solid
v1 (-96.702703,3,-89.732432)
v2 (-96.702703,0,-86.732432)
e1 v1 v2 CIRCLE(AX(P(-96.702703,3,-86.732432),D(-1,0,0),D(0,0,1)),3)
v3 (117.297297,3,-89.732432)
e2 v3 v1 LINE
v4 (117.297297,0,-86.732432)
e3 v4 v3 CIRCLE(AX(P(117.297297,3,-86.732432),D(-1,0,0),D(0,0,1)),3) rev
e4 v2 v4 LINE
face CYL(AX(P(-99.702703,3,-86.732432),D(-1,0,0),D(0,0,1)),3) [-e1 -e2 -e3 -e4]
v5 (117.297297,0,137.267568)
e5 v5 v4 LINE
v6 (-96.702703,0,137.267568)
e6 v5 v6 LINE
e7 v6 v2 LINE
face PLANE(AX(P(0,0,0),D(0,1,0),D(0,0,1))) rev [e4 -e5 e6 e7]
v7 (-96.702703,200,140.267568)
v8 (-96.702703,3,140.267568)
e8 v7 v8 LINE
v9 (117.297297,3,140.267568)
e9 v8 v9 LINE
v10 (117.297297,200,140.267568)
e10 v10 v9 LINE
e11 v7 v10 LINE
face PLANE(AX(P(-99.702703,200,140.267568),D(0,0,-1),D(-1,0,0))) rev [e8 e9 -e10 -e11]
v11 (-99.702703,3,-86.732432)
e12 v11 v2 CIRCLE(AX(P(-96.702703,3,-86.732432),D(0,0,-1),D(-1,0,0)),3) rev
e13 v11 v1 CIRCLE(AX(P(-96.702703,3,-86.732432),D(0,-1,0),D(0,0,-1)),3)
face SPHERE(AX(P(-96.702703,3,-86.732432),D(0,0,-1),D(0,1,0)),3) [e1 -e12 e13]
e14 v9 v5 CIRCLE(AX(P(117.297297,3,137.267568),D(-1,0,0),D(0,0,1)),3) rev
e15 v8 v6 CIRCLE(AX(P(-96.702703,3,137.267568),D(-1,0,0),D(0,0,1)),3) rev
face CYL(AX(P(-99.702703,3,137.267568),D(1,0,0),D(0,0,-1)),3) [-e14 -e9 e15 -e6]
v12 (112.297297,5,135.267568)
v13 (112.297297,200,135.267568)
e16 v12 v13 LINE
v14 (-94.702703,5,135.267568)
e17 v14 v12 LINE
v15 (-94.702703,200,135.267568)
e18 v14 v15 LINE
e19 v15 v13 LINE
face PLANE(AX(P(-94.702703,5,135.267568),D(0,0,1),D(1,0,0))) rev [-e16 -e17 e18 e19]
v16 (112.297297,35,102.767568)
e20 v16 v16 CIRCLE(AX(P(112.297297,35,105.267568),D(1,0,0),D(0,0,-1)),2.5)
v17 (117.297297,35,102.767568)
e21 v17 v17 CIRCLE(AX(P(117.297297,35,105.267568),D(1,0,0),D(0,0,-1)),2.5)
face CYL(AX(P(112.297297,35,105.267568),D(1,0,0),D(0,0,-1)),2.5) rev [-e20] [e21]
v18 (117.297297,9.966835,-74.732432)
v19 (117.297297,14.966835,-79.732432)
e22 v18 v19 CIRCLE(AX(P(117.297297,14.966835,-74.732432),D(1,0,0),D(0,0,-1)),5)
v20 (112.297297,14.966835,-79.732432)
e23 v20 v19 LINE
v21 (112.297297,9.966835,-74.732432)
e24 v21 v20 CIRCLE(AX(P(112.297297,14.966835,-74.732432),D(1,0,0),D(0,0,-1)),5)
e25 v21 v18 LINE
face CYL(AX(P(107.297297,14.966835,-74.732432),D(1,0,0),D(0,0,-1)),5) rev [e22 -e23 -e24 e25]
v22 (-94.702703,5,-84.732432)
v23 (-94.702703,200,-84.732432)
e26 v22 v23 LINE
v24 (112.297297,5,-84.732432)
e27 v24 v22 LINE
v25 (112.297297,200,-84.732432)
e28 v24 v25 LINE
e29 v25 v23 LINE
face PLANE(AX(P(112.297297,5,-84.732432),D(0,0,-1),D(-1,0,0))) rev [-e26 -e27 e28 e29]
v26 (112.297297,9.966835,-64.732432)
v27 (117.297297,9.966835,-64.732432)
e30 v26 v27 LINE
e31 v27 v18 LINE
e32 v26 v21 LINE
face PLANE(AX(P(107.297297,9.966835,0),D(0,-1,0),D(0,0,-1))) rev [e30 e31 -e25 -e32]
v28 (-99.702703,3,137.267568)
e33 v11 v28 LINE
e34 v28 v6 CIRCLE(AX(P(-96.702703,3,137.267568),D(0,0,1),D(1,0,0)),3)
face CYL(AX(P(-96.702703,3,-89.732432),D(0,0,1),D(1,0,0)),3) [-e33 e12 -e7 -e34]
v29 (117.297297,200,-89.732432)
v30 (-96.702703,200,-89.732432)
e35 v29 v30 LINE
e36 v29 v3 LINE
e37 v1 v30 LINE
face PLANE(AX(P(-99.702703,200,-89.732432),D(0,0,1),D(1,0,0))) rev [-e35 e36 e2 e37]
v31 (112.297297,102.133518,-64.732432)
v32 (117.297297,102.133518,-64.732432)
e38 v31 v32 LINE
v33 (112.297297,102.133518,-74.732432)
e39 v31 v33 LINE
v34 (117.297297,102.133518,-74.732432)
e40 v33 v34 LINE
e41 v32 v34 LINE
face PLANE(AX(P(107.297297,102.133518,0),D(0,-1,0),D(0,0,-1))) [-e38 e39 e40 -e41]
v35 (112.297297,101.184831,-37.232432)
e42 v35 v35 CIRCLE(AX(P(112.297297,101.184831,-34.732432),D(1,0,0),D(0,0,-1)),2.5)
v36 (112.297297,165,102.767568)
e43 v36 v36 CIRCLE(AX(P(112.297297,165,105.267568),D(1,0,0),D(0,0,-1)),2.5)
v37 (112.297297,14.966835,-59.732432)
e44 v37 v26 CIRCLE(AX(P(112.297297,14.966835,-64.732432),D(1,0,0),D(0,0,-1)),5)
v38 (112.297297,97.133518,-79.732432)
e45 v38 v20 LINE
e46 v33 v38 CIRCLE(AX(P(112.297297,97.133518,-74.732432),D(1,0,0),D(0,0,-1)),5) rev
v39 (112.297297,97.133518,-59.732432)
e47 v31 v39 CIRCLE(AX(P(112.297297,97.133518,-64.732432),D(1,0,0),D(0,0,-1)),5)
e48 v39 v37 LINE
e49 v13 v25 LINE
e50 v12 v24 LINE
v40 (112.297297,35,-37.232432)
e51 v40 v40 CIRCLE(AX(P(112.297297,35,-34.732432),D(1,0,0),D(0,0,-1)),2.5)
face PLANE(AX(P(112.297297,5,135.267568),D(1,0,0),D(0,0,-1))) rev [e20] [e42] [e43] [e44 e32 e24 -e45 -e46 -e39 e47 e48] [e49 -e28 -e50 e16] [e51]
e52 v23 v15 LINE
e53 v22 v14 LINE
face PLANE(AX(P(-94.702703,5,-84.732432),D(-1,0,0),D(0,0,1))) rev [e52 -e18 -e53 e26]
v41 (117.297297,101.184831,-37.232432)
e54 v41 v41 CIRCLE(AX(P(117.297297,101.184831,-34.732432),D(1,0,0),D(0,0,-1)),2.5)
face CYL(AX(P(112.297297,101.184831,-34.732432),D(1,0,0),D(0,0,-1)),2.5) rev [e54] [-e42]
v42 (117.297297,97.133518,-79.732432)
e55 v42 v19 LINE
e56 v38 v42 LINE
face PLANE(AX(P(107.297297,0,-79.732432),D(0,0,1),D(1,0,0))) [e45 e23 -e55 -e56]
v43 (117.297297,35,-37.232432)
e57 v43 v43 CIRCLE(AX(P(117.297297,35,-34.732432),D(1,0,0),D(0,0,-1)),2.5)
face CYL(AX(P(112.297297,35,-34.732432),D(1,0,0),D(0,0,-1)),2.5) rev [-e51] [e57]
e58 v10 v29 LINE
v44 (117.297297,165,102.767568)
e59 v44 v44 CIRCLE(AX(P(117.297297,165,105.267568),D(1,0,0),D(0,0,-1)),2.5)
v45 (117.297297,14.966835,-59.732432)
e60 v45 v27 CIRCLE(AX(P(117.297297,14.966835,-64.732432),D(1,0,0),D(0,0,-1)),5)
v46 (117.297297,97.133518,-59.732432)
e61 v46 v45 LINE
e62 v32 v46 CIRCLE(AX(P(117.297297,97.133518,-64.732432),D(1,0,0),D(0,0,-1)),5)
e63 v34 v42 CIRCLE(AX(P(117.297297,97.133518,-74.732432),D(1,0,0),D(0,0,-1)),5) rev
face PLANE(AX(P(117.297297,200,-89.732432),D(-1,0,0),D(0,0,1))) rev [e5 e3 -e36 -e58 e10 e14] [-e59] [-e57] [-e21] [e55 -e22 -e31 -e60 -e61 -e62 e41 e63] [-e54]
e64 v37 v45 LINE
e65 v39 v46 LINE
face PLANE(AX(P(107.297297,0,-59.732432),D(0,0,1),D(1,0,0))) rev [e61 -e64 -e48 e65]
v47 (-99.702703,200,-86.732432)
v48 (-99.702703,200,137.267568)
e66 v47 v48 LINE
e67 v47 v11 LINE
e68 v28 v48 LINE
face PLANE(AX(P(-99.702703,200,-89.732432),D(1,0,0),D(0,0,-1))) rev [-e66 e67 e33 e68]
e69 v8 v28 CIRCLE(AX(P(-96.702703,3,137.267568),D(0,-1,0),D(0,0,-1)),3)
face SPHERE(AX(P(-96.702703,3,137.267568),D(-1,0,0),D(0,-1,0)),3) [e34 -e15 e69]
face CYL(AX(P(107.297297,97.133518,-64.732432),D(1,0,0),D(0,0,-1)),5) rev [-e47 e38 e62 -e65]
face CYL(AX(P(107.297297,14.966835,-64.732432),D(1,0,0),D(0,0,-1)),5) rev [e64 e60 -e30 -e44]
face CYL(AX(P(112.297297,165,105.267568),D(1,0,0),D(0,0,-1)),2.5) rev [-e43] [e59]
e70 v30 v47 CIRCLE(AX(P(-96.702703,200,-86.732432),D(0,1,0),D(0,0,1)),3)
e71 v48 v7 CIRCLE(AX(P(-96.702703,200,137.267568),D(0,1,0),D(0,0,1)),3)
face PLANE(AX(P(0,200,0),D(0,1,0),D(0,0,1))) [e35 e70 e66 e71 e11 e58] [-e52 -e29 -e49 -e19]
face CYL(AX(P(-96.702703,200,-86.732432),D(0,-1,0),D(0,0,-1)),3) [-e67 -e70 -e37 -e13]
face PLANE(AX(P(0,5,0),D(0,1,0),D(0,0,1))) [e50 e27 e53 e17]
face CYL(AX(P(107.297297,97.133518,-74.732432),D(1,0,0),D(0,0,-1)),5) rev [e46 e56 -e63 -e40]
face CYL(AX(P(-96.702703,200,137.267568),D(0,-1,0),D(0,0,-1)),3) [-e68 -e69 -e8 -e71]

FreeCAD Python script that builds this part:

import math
import FreeCAD as App
import Part
import Sketcher

V = App.Vector


def edges_at(feature, points):
    """Names of the edges that pass closest to the given points."""
    edges = feature.Shape.Edges
    near = lambda p: min(range(len(edges)), key=lambda i: edges[i].distToShape(Part.Vertex(*p))[0])
    return sorted({f"Edge{near(p) + 1}" for p in points})


def add_polygon(sketch, points):
    """Adds a closed chain of lines whose ends are joined by coincident constraints."""
    first, n = sketch.GeometryCount, len(points)
    for a, b in zip(points, points[1:] + points[:1]):
        sketch.addGeometry(Part.LineSegment(App.Vector(*a, 0), App.Vector(*b, 0)), False)
    for i in range(n):
        sketch.addConstraint(Sketcher.Constraint("Coincident", first + i, 2, first + (i + 1) % n, 1))

doc = App.newDocument("Part")
body = doc.addObject("PartDesign::Body", "Body")

sketch1 = doc.addObject("Sketcher::SketchObject", "Sketch")
body.addObject(sketch1)
sketch1.AttachmentSupport = (doc.XZ_Plane, [""])
sketch1.MapMode = "FlatFace"
add_polygon(sketch1, [(-100, -90), (-100, 140), (117, 140), (117, -90)])
sketch1.addConstraint(Sketcher.Constraint("Vertical", 0))
sketch1.addConstraint(Sketcher.Constraint("Horizontal", 1))
sketch1.addConstraint(Sketcher.Constraint("Vertical", 2))
sketch1.addConstraint(Sketcher.Constraint("Horizontal", 3))
sketch1.addConstraint(Sketcher.Constraint("DistanceX", 1, 1, 1, 2, 217.0))
sketch1.addConstraint(Sketcher.Constraint("DistanceY", 0, 1, 0, 2, 230.0))
sketch1.addConstraint(Sketcher.Constraint("DistanceX", 0, 2, -1, 1, 99.702703))
sketch1.addConstraint(Sketcher.Constraint("DistanceY", -1, 1, 0, 2, 140.267568))
pad1 = doc.addObject("PartDesign::Pad", "Pad")
body.addObject(pad1)
pad1.Profile = sketch1
pad1.Length = 200
pad1.Reversed = True

sketch2 = doc.addObject("Sketcher::SketchObject", "Sketch001")
body.addObject(sketch2)
sketch2.AttachmentSupport = (doc.XZ_Plane, [""])
sketch2.MapMode = "FlatFace"
sketch2.AttachmentOffset = App.Placement(V(0, 0, -200), App.Rotation())
add_polygon(sketch2, [(-95, -85), (-95, 135), (112, 135), (112, -85)])
sketch2.addConstraint(Sketcher.Constraint("Vertical", 0))
sketch2.addConstraint(Sketcher.Constraint("Horizontal", 1))
sketch2.addConstraint(Sketcher.Constraint("Vertical", 2))
sketch2.addConstraint(Sketcher.Constraint("Horizontal", 3))
sketch2.addConstraint(Sketcher.Constraint("DistanceX", 1, 1, 1, 2, 207.0))
sketch2.addConstraint(Sketcher.Constraint("DistanceY", 0, 1, 0, 2, 220.0))
sketch2.addConstraint(Sketcher.Constraint("DistanceX", 0, 2, -1, 1, 94.702703))
sketch2.addConstraint(Sketcher.Constraint("DistanceY", -1, 1, 0, 2, 135.267568))
pocket1 = doc.addObject("PartDesign::Pocket", "Pocket")
body.addObject(pocket1)
pocket1.Profile = sketch2
pocket1.Length = 195
pocket1.Reversed = True
doc.recompute()

fillet = doc.addObject("PartDesign::Fillet", "Fillet")
body.addObject(fillet)
fillet.Base = (pocket1, edges_at(pocket1, [
    (8.797, 0, -89.732),
    (8.797, 0, 140.268),
    (-99.703, 0, 25.268),
    (-99.703, 100, -89.732),
    (-99.703, 100, 140.268),
]))
fillet.Radius = 3

sketch3 = doc.addObject("Sketcher::SketchObject", "Sketch002")
body.addObject(sketch3)
sketch3.AttachmentSupport = (doc.YZ_Plane, [""])
sketch3.MapMode = "FlatFace"
sketch3.AttachmentOffset = App.Placement(V(0, 0, 117.297297), App.Rotation())
sketch3.addGeometry(Part.ArcOfCircle(Part.Circle(V(165, 105.3, 0), V(0, 0, 1), 2.5), math.radians(180), math.radians(270)), False)
sketch3.addGeometry(Part.ArcOfCircle(Part.Circle(V(165, 105.3, 0), V(0, 0, 1), 2.5), math.radians(-90), math.radians(180)), False)
sketch3.addGeometry(Part.ArcOfCircle(Part.Circle(V(35, 105.3, 0), V(0, 0, 1), 2.5), math.radians(0), math.radians(270)), False)
sketch3.addGeometry(Part.ArcOfCircle(Part.Circle(V(35, 105.3, 0), V(0, 0, 1), 2.5), math.radians(-90), math.radians(0)), False)
sketch3.addGeometry(Part.ArcOfCircle(Part.Circle(V(35, -34.7, 0), V(0, 0, 1), 2.5), math.radians(-90), math.radians(0)), False)
sketch3.addGeometry(Part.ArcOfCircle(Part.Circle(V(35, -34.7, 0), V(0, 0, 1), 2.5), math.radians(0), math.radians(90)), False)
sketch3.addGeometry(Part.ArcOfCircle(Part.Circle(V(35, -34.7, 0), V(0, 0, 1), 2.5), math.radians(90), math.radians(270)), False)
sketch3.addGeometry(Part.ArcOfCircle(Part.Circle(V(101.2, -34.7, 0), V(0, 0, 1), 2.5), math.radians(180), math.radians(270)), False)
sketch3.addGeometry(Part.ArcOfCircle(Part.Circle(V(101.2, -34.7, 0), V(0, 0, 1), 2.5), math.radians(-90), math.radians(60)), False)
sketch3.addGeometry(Part.ArcOfCircle(Part.Circle(V(101.2, -34.7, 0), V(0, 0, 1), 2.5), math.radians(60), math.radians(180)), False)
sketch3.addConstraint(Sketcher.Constraint("Tangent", 0, 1, 1, 2))
sketch3.addConstraint(Sketcher.Constraint("Coincident", 1, 1, 0, 2))
sketch3.addConstraint(Sketcher.Constraint("Tangent", 2, 1, 3, 2))
sketch3.addConstraint(Sketcher.Constraint("Coincident", 3, 1, 2, 2))
sketch3.addConstraint(Sketcher.Constraint("Tangent", 4, 2, 5, 1))
sketch3.addConstraint(Sketcher.Constraint("Tangent", 5, 2, 6, 1))
sketch3.addConstraint(Sketcher.Constraint("Tangent", 6, 2, 4, 1))
sketch3.addConstraint(Sketcher.Constraint("Tangent", 7, 2, 8, 1))
sketch3.addConstraint(Sketcher.Constraint("Tangent", 8, 2, 9, 1))
sketch3.addConstraint(Sketcher.Constraint("Tangent", 9, 2, 7, 1))
sketch3.addConstraint(Sketcher.Constraint("Equal", 1, 2))
sketch3.addConstraint(Sketcher.Constraint("Equal", 3, 4))
sketch3.addConstraint(Sketcher.Constraint("Equal", 6, 7))
sketch3.addConstraint(Sketcher.Constraint("Horizontal", 1, 3, 2, 3))
sketch3.addConstraint(Sketcher.Constraint("Horizontal", 6, 3, 7, 3))
sketch3.addConstraint(Sketcher.Constraint("Horizontal", 3, 3, 0, 1))
sketch3.addConstraint(Sketcher.Constraint("Horizontal", 0, 1, 2, 1))
sketch3.addConstraint(Sketcher.Constraint("Horizontal", 9, 3, 4, 2))
sketch3.addConstraint(Sketcher.Constraint("Horizontal", 4, 2, 9, 2))
sketch3.addConstraint(Sketcher.Constraint("Vertical", 3, 3, 4, 3))
sketch3.addConstraint(Sketcher.Constraint("Vertical", 0, 3, 1, 1))
sketch3.addConstraint(Sketcher.Constraint("Vertical", 6, 3, 3, 1))
sketch3.addConstraint(Sketcher.Constraint("Vertical", 3, 1, 5, 2))
sketch3.addConstraint(Sketcher.Constraint("Vertical", 5, 2, 6, 2))
sketch3.addConstraint(Sketcher.Constraint("Vertical", 9, 3, 7, 2))
sketch3.addConstraint(Sketcher.Constraint("Radius", 0, 2.5))
sketch3.addConstraint(Sketcher.Constraint("DistanceX", -1, 1, 0, 3, 165.0))
sketch3.addConstraint(Sketcher.Constraint("DistanceX", -1, 1, 2, 3, 35.0))
sketch3.addConstraint(Sketcher.Constraint("DistanceY", 4, 3, 2, 3, 140.0))
sketch3.addConstraint(Sketcher.Constraint("DistanceX", -1, 1, 7, 3, 101.184831))
sketch3.addConstraint(Sketcher.Constraint("DistanceY", -1, 1, 0, 3, 105.267568))
sketch3.addConstraint(Sketcher.Constraint("DistanceX", -1, 1, 8, 2, 102.425144))
pocket2 = doc.addObject("PartDesign::Pocket", "Pocket001")
body.addObject(pocket2)
pocket2.Profile = sketch3
pocket2.Length = 5

sketch4 = doc.addObject("Sketcher::SketchObject", "Sketch003")
body.addObject(sketch4)
sketch4.AttachmentSupport = (doc.YZ_Plane, [""])
sketch4.MapMode = "FlatFace"
sketch4.AttachmentOffset = App.Placement(V(0, 0, 117.297297), App.Rotation())
sketch4.addGeometry(Part.LineSegment(V(102, -75, 0), V(102, -65, 0)), False)
sketch4.addGeometry(Part.ArcOfCircle(Part.Circle(V(97, -65, 0), V(0, 0, 1), 5), math.radians(0), math.radians(90)), False)
sketch4.addGeometry(Part.LineSegment(V(97, -60, 0), V(15, -60, 0)), False)
sketch4.addGeometry(Part.ArcOfCircle(Part.Circle(V(15, -65, 0), V(0, 0, 1), 5), math.radians(90), math.radians(180)), False)
sketch4.addGeometry(Part.LineSegment(V(10, -65, 0), V(10, -75, 0)), False)
sketch4.addGeometry(Part.ArcOfCircle(Part.Circle(V(15, -75, 0), V(0, 0, 1), 5), math.radians(180), math.radians(270)), False)
sketch4.addGeometry(Part.LineSegment(V(15, -80, 0), V(97, -80, 0)), False)
sketch4.addGeometry(Part.ArcOfCircle(Part.Circle(V(97, -75, 0), V(0, 0, 1), 5), math.radians(-90), math.radians(0)), False)
sketch4.addConstraint(Sketcher.Constraint("Tangent", 0, 2, 1, 1))
sketch4.addConstraint(Sketcher.Constraint("Tangent", 1, 2, 2, 1))
sketch4.addConstraint(Sketcher.Constraint("Tangent", 2, 2, 3, 1))
sketch4.addConstraint(Sketcher.Constraint("Tangent", 3, 2, 4, 1))
sketch4.addConstraint(Sketcher.Constraint("Tangent", 4, 2, 5, 1))
sketch4.addConstraint(Sketcher.Constraint("Tangent", 5, 2, 6, 1))
sketch4.addConstraint(Sketcher.Constraint("Tangent", 6, 2, 7, 1))
sketch4.addConstraint(Sketcher.Constraint("Tangent", 7, 2, 0, 1))
sketch4.addConstraint(Sketcher.Constraint("Vertical", 0))
sketch4.addConstraint(Sketcher.Constraint("Horizontal", 2))
sketch4.addConstraint(Sketcher.Constraint("Vertical", 4))
sketch4.addConstraint(Sketcher.Constraint("Horizontal", 6))
sketch4.addConstraint(Sketcher.Constraint("Equal", 1, 3))
sketch4.addConstraint(Sketcher.Constraint("Equal", 3, 5))
sketch4.addConstraint(Sketcher.Constraint("Equal", 5, 7))
sketch4.addConstraint(Sketcher.Constraint("Radius", 1, 5.0))
sketch4.addConstraint(Sketcher.Constraint("DistanceY", 0, 1, 0, 2, 10.0))
sketch4.addConstraint(Sketcher.Constraint("DistanceX", 2, 2, 2, 1, 82.166684))
sketch4.addConstraint(Sketcher.Constraint("DistanceX", -1, 1, 1, 3, 97.133518))
sketch4.addConstraint(Sketcher.Constraint("DistanceY", 1, 3, -1, 1, 64.732432))
pocket3 = doc.addObject("PartDesign::Pocket", "Pocket002")
body.addObject(pocket3)
pocket3.Profile = sketch4
pocket3.Length = 10

doc.recompute()
